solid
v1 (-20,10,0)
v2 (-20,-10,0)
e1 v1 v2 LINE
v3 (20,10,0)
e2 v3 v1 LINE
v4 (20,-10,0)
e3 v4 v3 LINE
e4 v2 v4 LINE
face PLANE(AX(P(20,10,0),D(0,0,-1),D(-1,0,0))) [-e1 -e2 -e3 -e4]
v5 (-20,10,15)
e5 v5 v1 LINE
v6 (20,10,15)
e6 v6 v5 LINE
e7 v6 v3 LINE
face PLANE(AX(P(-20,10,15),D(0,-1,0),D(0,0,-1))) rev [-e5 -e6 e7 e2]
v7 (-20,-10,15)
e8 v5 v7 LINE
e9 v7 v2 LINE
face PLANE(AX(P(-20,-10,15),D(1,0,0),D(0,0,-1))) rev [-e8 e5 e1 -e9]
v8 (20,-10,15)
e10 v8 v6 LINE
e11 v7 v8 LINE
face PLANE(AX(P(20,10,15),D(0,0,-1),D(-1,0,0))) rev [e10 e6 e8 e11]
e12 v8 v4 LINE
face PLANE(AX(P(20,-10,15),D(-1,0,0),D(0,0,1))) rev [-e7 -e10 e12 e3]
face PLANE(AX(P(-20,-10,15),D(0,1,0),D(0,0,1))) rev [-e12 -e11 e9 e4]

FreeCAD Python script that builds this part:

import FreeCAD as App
import Part
import Sketcher

V = App.Vector

doc = App.newDocument("Part")
body = doc.addObject("PartDesign::Body", "Body")

# Sketch on XY plane
sketch1 = doc.addObject("Sketcher::SketchObject", "Sketch")
body.addObject(sketch1)
sketch1.AttachmentSupport = (doc.XY_Plane, [""])
sketch1.MapMode = "FlatFace"
sketch1.addGeometry(Part.LineSegment(V(-20, 10, 0), V(-20, -10, 0)), False)
sketch1.addGeometry(Part.LineSegment(V(-20, -10, 0), V(20, -10, 0)), False)
sketch1.addGeometry(Part.LineSegment(V(20, -10, 0), V(20, 10, 0)), False)
sketch1.addGeometry(Part.LineSegment(V(20, 10, 0), V(-20, 10, 0)), False)
sketch1.addConstraint(Sketcher.Constraint("Coincident", 0, 2, 1, 1))
sketch1.addConstraint(Sketcher.Constraint("Coincident", 1, 2, 2, 1))
sketch1.addConstraint(Sketcher.Constraint("Coincident", 2, 2, 3, 1))
sketch1.addConstraint(Sketcher.Constraint("Coincident", 3, 2, 0, 1))
sketch1.addConstraint(Sketcher.Constraint("Vertical", 0))
sketch1.addConstraint(Sketcher.Constraint("Horizontal", 1))
sketch1.addConstraint(Sketcher.Constraint("Vertical", 2))
sketch1.addConstraint(Sketcher.Constraint("Horizontal", 3))
sketch1.addConstraint(Sketcher.Constraint("Symmetric", 0, 2, 2, 2, -1, 1))
sketch1.addConstraint(Sketcher.Constraint("DistanceX", 1, 1, 1, 2, 40.0))
sketch1.addConstraint(Sketcher.Constraint("DistanceY", 0, 2, 0, 1, 20.0))
pad1 = doc.addObject("PartDesign::Pad", "Pad")
body.addObject(pad1)
pad1.Profile = sketch1
pad1.Length = 15

doc.recompute()
